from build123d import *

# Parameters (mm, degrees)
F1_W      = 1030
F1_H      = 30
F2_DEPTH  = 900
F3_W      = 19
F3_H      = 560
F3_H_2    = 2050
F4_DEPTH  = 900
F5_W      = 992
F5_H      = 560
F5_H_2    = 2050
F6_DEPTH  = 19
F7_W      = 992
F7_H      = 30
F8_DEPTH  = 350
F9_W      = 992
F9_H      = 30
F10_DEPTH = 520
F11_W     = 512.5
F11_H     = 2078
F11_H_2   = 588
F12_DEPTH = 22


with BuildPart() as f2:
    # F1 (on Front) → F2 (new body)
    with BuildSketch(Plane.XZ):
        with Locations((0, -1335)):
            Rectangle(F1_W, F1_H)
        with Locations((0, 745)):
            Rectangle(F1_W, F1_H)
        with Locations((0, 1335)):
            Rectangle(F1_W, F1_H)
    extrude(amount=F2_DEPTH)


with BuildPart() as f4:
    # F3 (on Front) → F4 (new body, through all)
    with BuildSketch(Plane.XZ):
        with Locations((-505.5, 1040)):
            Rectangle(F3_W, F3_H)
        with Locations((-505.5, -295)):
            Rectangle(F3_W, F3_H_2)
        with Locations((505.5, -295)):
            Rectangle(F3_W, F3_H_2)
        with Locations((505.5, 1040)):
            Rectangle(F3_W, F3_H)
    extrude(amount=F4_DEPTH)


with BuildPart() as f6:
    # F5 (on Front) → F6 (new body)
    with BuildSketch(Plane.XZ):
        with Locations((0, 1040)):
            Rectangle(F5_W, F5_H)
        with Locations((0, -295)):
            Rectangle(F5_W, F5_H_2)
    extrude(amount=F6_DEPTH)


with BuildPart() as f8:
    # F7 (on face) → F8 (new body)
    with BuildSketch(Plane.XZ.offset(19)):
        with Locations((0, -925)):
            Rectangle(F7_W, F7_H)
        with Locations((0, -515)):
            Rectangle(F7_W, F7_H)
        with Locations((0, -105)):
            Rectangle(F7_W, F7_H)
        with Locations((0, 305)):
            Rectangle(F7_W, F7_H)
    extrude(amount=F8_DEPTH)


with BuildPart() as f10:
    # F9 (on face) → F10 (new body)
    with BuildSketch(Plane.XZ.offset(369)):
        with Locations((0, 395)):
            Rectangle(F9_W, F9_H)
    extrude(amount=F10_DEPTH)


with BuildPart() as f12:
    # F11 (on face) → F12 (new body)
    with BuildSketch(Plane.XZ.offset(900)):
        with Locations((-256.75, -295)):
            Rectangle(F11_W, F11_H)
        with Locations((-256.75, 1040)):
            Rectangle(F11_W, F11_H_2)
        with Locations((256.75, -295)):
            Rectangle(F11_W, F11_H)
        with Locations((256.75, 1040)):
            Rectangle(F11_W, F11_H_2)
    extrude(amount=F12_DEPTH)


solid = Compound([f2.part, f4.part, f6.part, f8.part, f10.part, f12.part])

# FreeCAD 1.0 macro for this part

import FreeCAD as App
import Part
import Sketcher
from FreeCAD import Vector
Q = App.Units.Quantity

doc = App.newDocument("Part")
body = doc.addObject("PartDesign::Body", "Body")
body.AllowCompound = True

# Sketch on XZ plane
sketch1 = doc.addObject("Sketcher::SketchObject", "Sketch")
body.addObject(sketch1)
sketch1.AttachmentSupport = (doc.XZ_Plane, [""])
sketch1.MapMode = "FlatFace"
sketch1.addGeometry(Part.LineSegment(Vector(-515, -1320, 0), Vector(-515, -1350, 0)), False)
sketch1.addGeometry(Part.LineSegment(Vector(-515, -1350, 0), Vector(515, -1350, 0)), False)
sketch1.addGeometry(Part.LineSegment(Vector(515, -1350, 0), Vector(515, -1320, 0)), False)
sketch1.addGeometry(Part.LineSegment(Vector(515, -1320, 0), Vector(-515, -1320, 0)), False)
sketch1.addGeometry(Part.LineSegment(Vector(-515, 760, 0), Vector(-515, 730, 0)), False)
sketch1.addGeometry(Part.LineSegment(Vector(-515, 730, 0), Vector(515, 730, 0)), False)
sketch1.addGeometry(Part.LineSegment(Vector(515, 730, 0), Vector(515, 760, 0)), False)
sketch1.addGeometry(Part.LineSegment(Vector(515, 760, 0), Vector(-515, 760, 0)), False)
sketch1.addGeometry(Part.LineSegment(Vector(-515, 1350, 0), Vector(-515, 1320, 0)), False)
sketch1.addGeometry(Part.LineSegment(Vector(-515, 1320, 0), Vector(515, 1320, 0)), False)
sketch1.addGeometry(Part.LineSegment(Vector(515, 1320, 0), Vector(515, 1350, 0)), False)
sketch1.addGeometry(Part.LineSegment(Vector(515, 1350, 0), Vector(-515, 1350, 0)), False)
sketch1.addConstraint(Sketcher.Constraint("Coincident", 0, 2, 1, 1))
sketch1.addConstraint(Sketcher.Constraint("Coincident", 1, 2, 2, 1))
sketch1.addConstraint(Sketcher.Constraint("Coincident", 2, 2, 3, 1))
sketch1.addConstraint(Sketcher.Constraint("Coincident", 3, 2, 0, 1))
sketch1.addConstraint(Sketcher.Constraint("Coincident", 4, 2, 5, 1))
sketch1.addConstraint(Sketcher.Constraint("Coincident", 5, 2, 6, 1))
sketch1.addConstraint(Sketcher.Constraint("Coincident", 6, 2, 7, 1))
sketch1.addConstraint(Sketcher.Constraint("Coincident", 7, 2, 4, 1))
sketch1.addConstraint(Sketcher.Constraint("Coincident", 8, 2, 9, 1))
sketch1.addConstraint(Sketcher.Constraint("Coincident", 9, 2, 10, 1))
sketch1.addConstraint(Sketcher.Constraint("Coincident", 10, 2, 11, 1))
sketch1.addConstraint(Sketcher.Constraint("Coincident", 11, 2, 8, 1))
sketch1.addConstraint(Sketcher.Constraint("Vertical", 0))
sketch1.addConstraint(Sketcher.Constraint("Horizontal", 1))
sketch1.addConstraint(Sketcher.Constraint("Vertical", 2))
sketch1.addConstraint(Sketcher.Constraint("Horizontal", 3))
sketch1.addConstraint(Sketcher.Constraint("Vertical", 4))
sketch1.addConstraint(Sketcher.Constraint("Horizontal", 5))
sketch1.addConstraint(Sketcher.Constraint("Vertical", 6))
sketch1.addConstraint(Sketcher.Constraint("Horizontal", 7))
sketch1.addConstraint(Sketcher.Constraint("Vertical", 8))
sketch1.addConstraint(Sketcher.Constraint("Horizontal", 9))
sketch1.addConstraint(Sketcher.Constraint("Vertical", 10))
sketch1.addConstraint(Sketcher.Constraint("Horizontal", 11))
sketch1.addConstraint(Sketcher.Constraint("Symmetric", 2, 2, 8, 2, -1, 1))
sketch1.addConstraint(Sketcher.Constraint("Symmetric", 0, 2, 10, 2, -1, 1))
sketch1.addConstraint(Sketcher.Constraint("Vertical", 3, 2, 4, 2))
sketch1.addConstraint(Sketcher.Constraint("Vertical", 2, 2, 5, 2))
sketch1.addConstraint(Sketcher.Constraint("Vertical", 7, 2, 8, 2))
sketch1.addConstraint(Sketcher.Constraint("Equal", 2, 4))
sketch1.addConstraint(Sketcher.Constraint("DistanceX", 1, 1, 1, 2, Q("1030 mm")))
sketch1.addConstraint(Sketcher.Constraint("DistanceY", 0, 2, 0, 1, Q("30 mm")))
sketch1.addConstraint(Sketcher.Constraint("DistanceY", 0, 2, -1, 1, Q("1350 mm")))
sketch1.addConstraint(Sketcher.Constraint("DistanceY", -1, 1, 4, 2, Q("730 mm")))
pad1 = doc.addObject("PartDesign::Pad", "Pad")
body.addObject(pad1)
pad1.Profile = sketch1
pad1.Length = 900
body2 = doc.addObject("PartDesign::Body", "Body001")
body2.AllowCompound = True

# Sketch on XZ plane
sketch2 = doc.addObject("Sketcher::SketchObject", "Sketch001")
body2.addObject(sketch2)
sketch2.AttachmentSupport = (doc.getObject("XZ_Plane001"), [""])
sketch2.MapMode = "FlatFace"
sketch2.addGeometry(Part.LineSegment(Vector(-515, 1320, 0), Vector(-515, 760, 0)), False)
sketch2.addGeometry(Part.LineSegment(Vector(-515, 760, 0), Vector(-496, 760, 0)), False)
sketch2.addGeometry(Part.LineSegment(Vector(-496, 760, 0), Vector(-496, 1320, 0)), False)
sketch2.addGeometry(Part.LineSegment(Vector(-496, 1320, 0), Vector(-515, 1320, 0)), False)
sketch2.addGeometry(Part.LineSegment(Vector(-515, 730, 0), Vector(-515, -1320, 0)), False)
sketch2.addGeometry(Part.LineSegment(Vector(-515, -1320, 0), Vector(-496, -1320, 0)), False)
sketch2.addGeometry(Part.LineSegment(Vector(-496, -1320, 0), Vector(-496, 730, 0)), False)
sketch2.addGeometry(Part.LineSegment(Vector(-496, 730, 0), Vector(-515, 730, 0)), False)
sketch2.addGeometry(Part.LineSegment(Vector(496, 730, 0), Vector(496, -1320, 0)), False)
sketch2.addGeometry(Part.LineSegment(Vector(496, -1320, 0), Vector(515, -1320, 0)), False)
sketch2.addGeometry(Part.LineSegment(Vector(515, -1320, 0), Vector(515, 730, 0)), False)
sketch2.addGeometry(Part.LineSegment(Vector(515, 730, 0), Vector(496, 730, 0)), False)
sketch2.addGeometry(Part.LineSegment(Vector(496, 1320, 0), Vector(496, 760, 0)), False)
sketch2.addGeometry(Part.LineSegment(Vector(496, 760, 0), Vector(515, 760, 0)), False)
sketch2.addGeometry(Part.LineSegment(Vector(515, 760, 0), Vector(515, 1320, 0)), False)
sketch2.addGeometry(Part.LineSegment(Vector(515, 1320, 0), Vector(496, 1320, 0)), False)
sketch2.addConstraint(Sketcher.Constraint("Coincident", 0, 2, 1, 1))
sketch2.addConstraint(Sketcher.Constraint("Coincident", 1, 2, 2, 1))
sketch2.addConstraint(Sketcher.Constraint("Coincident", 2, 2, 3, 1))
sketch2.addConstraint(Sketcher.Constraint("Coincident", 3, 2, 0, 1))
sketch2.addConstraint(Sketcher.Constraint("Coincident", 4, 2, 5, 1))
sketch2.addConstraint(Sketcher.Constraint("Coincident", 5, 2, 6, 1))
sketch2.addConstraint(Sketcher.Constraint("Coincident", 6, 2, 7, 1))
sketch2.addConstraint(Sketcher.Constraint("Coincident", 7, 2, 4, 1))
sketch2.addConstraint(Sketcher.Constraint("Coincident", 8, 2, 9, 1))
sketch2.addConstraint(Sketcher.Constraint("Coincident", 9, 2, 10, 1))
sketch2.addConstraint(Sketcher.Constraint("Coincident", 10, 2, 11, 1))
sketch2.addConstraint(Sketcher.Constraint("Coincident", 11, 2, 8, 1))
sketch2.addConstraint(Sketcher.Constraint("Coincident", 12, 2, 13, 1))
sketch2.addConstraint(Sketcher.Constraint("Coincident", 13, 2, 14, 1))
sketch2.addConstraint(Sketcher.Constraint("Coincident", 14, 2, 15, 1))
sketch2.addConstraint(Sketcher.Constraint("Coincident", 15, 2, 12, 1))
sketch2.addConstraint(Sketcher.Constraint("Vertical", 0))
sketch2.addConstraint(Sketcher.Constraint("Horizontal", 1))
sketch2.addConstraint(Sketcher.Constraint("Vertical", 2))
sketch2.addConstraint(Sketcher.Constraint("Horizontal", 3))
sketch2.addConstraint(Sketcher.Constraint("Vertical", 4))
sketch2.addConstraint(Sketcher.Constraint("Horizontal", 5))
sketch2.addConstraint(Sketcher.Constraint("Vertical", 6))
sketch2.addConstraint(Sketcher.Constraint("Horizontal", 7))
sketch2.addConstraint(Sketcher.Constraint("Vertical", 8))
sketch2.addConstraint(Sketcher.Constraint("Horizontal", 9))
sketch2.addConstraint(Sketcher.Constraint("Vertical", 10))
sketch2.addConstraint(Sketcher.Constraint("Horizontal", 11))
sketch2.addConstraint(Sketcher.Constraint("Vertical", 12))
sketch2.addConstraint(Sketcher.Constraint("Horizontal", 13))
sketch2.addConstraint(Sketcher.Constraint("Vertical", 14))
sketch2.addConstraint(Sketcher.Constraint("Horizontal", 15))
sketch2.addConstraint(Sketcher.Constraint("Symmetric", 2, 2, 8, 2, -1, 1))
sketch2.addConstraint(Sketcher.Constraint("Symmetric", 4, 2, 14, 2, -1, 1))
sketch2.addConstraint(Sketcher.Constraint("Symmetric", 5, 2, 8, 2, -2))
sketch2.addConstraint(Sketcher.Constraint("Symmetric", 7, 2, 10, 2, -2))
sketch2.addConstraint(Sketcher.Constraint("Symmetric", 1, 2, 12, 2, -2))
sketch2.addConstraint(Sketcher.Constraint("Vertical", 3, 2, 4, 2))
sketch2.addConstraint(Sketcher.Constraint("DistanceX", 1, 1, 1, 2, Q("19 mm")))
sketch2.addConstraint(Sketcher.Constraint("DistanceY", 0, 2, 0, 1, Q("560 mm")))
sketch2.addConstraint(Sketcher.Constraint("DistanceY", 4, 2, 4, 1, Q("2050 mm")))
sketch2.addConstraint(Sketcher.Constraint("DistanceX", 0, 2, -1, 1, Q("515 mm")))
sketch2.addConstraint(Sketcher.Constraint("DistanceY", -1, 1, 0, 2, Q("760 mm")))
pad2 = doc.addObject("PartDesign::Pad", "Pad001")
body2.addObject(pad2)
pad2.Profile = sketch2
pad2.Length = 900
body3 = doc.addObject("PartDesign::Body", "Body002")
body3.AllowCompound = True

# Sketch on XZ plane
sketch3 = doc.addObject("Sketcher::SketchObject", "Sketch002")
body3.addObject(sketch3)
sketch3.AttachmentSupport = (doc.getObject("XZ_Plane002"), [""])
sketch3.MapMode = "FlatFace"
sketch3.addGeometry(Part.LineSegment(Vector(-496, 1320, 0), Vector(-496, 760, 0)), False)
sketch3.addGeometry(Part.LineSegment(Vector(-496, 760, 0), Vector(496, 760, 0)), False)
sketch3.addGeometry(Part.LineSegment(Vector(496, 760, 0), Vector(496, 1320, 0)), False)
sketch3.addGeometry(Part.LineSegment(Vector(496, 1320, 0), Vector(-496, 1320, 0)), False)
sketch3.addGeometry(Part.LineSegment(Vector(-496, 730, 0), Vector(-496, -1320, 0)), False)
sketch3.addGeometry(Part.LineSegment(Vector(-496, -1320, 0), Vector(496, -1320, 0)), False)
sketch3.addGeometry(Part.LineSegment(Vector(496, -1320, 0), Vector(496, 730, 0)), False)
sketch3.addGeometry(Part.LineSegment(Vector(496, 730, 0), Vector(-496, 730, 0)), False)
sketch3.addConstraint(Sketcher.Constraint("Coincident", 0, 2, 1, 1))
sketch3.addConstraint(Sketcher.Constraint("Coincident", 1, 2, 2, 1))
sketch3.addConstraint(Sketcher.Constraint("Coincident", 2, 2, 3, 1))
sketch3.addConstraint(Sketcher.Constraint("Coincident", 3, 2, 0, 1))
sketch3.addConstraint(Sketcher.Constraint("Coincident", 4, 2, 5, 1))
sketch3.addConstraint(Sketcher.Constraint("Coincident", 5, 2, 6, 1))
sketch3.addConstraint(Sketcher.Constraint("Coincident", 6, 2, 7, 1))
sketch3.addConstraint(Sketcher.Constraint("Coincident", 7, 2, 4, 1))
sketch3.addConstraint(Sketcher.Constraint("Vertical", 0))
sketch3.addConstraint(Sketcher.Constraint("Horizontal", 1))
sketch3.addConstraint(Sketcher.Constraint("Vertical", 2))
sketch3.addConstraint(Sketcher.Constraint("Horizontal", 3))
sketch3.addConstraint(Sketcher.Constraint("Vertical", 4))
sketch3.addConstraint(Sketcher.Constraint("Horizontal", 5))
sketch3.addConstraint(Sketcher.Constraint("Vertical", 6))
sketch3.addConstraint(Sketcher.Constraint("Horizontal", 7))
sketch3.addConstraint(Sketcher.Constraint("Symmetric", 2, 2, 4, 2, -1, 1))
sketch3.addConstraint(Sketcher.Constraint("Vertical", 3, 2, 4, 2))
sketch3.addConstraint(Sketcher.Constraint("Vertical", 2, 2, 5, 2))
sketch3.addConstraint(Sketcher.Constraint("DistanceX", 1, 1, 1, 2, Q("992 mm")))
sketch3.addConstraint(Sketcher.Constraint("DistanceY", 0, 2, 0, 1, Q("560 mm")))
sketch3.addConstraint(Sketcher.Constraint("DistanceY", 4, 2, 4, 1, Q("2050 mm")))
sketch3.addConstraint(Sketcher.Constraint("DistanceY", -1, 1, 0, 2, Q("760 mm")))
pad3 = doc.addObject("PartDesign::Pad", "Pad002")
body3.addObject(pad3)
pad3.Profile = sketch3
pad3.Length = 19
body4 = doc.addObject("PartDesign::Body", "Body003")
body4.AllowCompound = True

# Sketch on XZ plane
sketch4 = doc.addObject("Sketcher::SketchObject", "Sketch003")
body4.addObject(sketch4)
sketch4.AttachmentSupport = (doc.getObject("XZ_Plane003"), [""])
sketch4.MapMode = "FlatFace"
sketch4.AttachmentOffset = App.Placement(Vector(0, 0, 19), App.Rotation())
sketch4.addGeometry(Part.LineSegment(Vector(-496, -910, 0), Vector(-496, -940, 0)), False)
sketch4.addGeometry(Part.LineSegment(Vector(-496, -940, 0), Vector(496, -940, 0)), False)
sketch4.addGeometry(Part.LineSegment(Vector(496, -940, 0), Vector(496, -910, 0)), False)
sketch4.addGeometry(Part.LineSegment(Vector(496, -910, 0), Vector(-496, -910, 0)), False)
sketch4.addGeometry(Part.LineSegment(Vector(-496, -500, 0), Vector(-496, -530, 0)), False)
sketch4.addGeometry(Part.LineSegment(Vector(-496, -530, 0), Vector(496, -530, 0)), False)
sketch4.addGeometry(Part.LineSegment(Vector(496, -530, 0), Vector(496, -500, 0)), False)
sketch4.addGeometry(Part.LineSegment(Vector(496, -500, 0), Vector(-496, -500, 0)), False)
sketch4.addGeometry(Part.LineSegment(Vector(-496, -90, 0), Vector(-496, -120, 0)), False)
sketch4.addGeometry(Part.LineSegment(Vector(-496, -120, 0), Vector(496, -120, 0)), False)
sketch4.addGeometry(Part.LineSegment(Vector(496, -120, 0), Vector(496, -90, 0)), False)
sketch4.addGeometry(Part.LineSegment(Vector(496, -90, 0), Vector(-496, -90, 0)), False)
sketch4.addGeometry(Part.LineSegment(Vector(-496, 320, 0), Vector(-496, 290, 0)), False)
sketch4.addGeometry(Part.LineSegment(Vector(-496, 290, 0), Vector(496, 290, 0)), False)
sketch4.addGeometry(Part.LineSegment(Vector(496, 290, 0), Vector(496, 320, 0)), False)
sketch4.addGeometry(Part.LineSegment(Vector(496, 320, 0), Vector(-496, 320, 0)), False)
sketch4.addConstraint(Sketcher.Constraint("Coincident", 0, 2, 1, 1))
sketch4.addConstraint(Sketcher.Constraint("Coincident", 1, 2, 2, 1))
sketch4.addConstraint(Sketcher.Constraint("Coincident", 2, 2, 3, 1))
sketch4.addConstraint(Sketcher.Constraint("Coincident", 3, 2, 0, 1))
sketch4.addConstraint(Sketcher.Constraint("Coincident", 4, 2, 5, 1))
sketch4.addConstraint(Sketcher.Constraint("Coincident", 5, 2, 6, 1))
sketch4.addConstraint(Sketcher.Constraint("Coincident", 6, 2, 7, 1))
sketch4.addConstraint(Sketcher.Constraint("Coincident", 7, 2, 4, 1))
sketch4.addConstraint(Sketcher.Constraint("Coincident", 8, 2, 9, 1))
sketch4.addConstraint(Sketcher.Constraint("Coincident", 9, 2, 10, 1))
sketch4.addConstraint(Sketcher.Constraint("Coincident", 10, 2, 11, 1))
sketch4.addConstraint(Sketcher.Constraint("Coincident", 11, 2, 8, 1))
sketch4.addConstraint(Sketcher.Constraint("Coincident", 12, 2, 13, 1))
sketch4.addConstraint(Sketcher.Constraint("Coincident", 13, 2, 14, 1))
sketch4.addConstraint(Sketcher.Constraint("Coincident", 14, 2, 15, 1))
sketch4.addConstraint(Sketcher.Constraint("Coincident", 15, 2, 12, 1))
sketch4.addConstraint(Sketcher.Constraint("Vertical", 0))
sketch4.addConstraint(Sketcher.Constraint("Horizontal", 1))
sketch4.addConstraint(Sketcher.Constraint("Vertical", 2))
sketch4.addConstraint(Sketcher.Constraint("Horizontal", 3))
sketch4.addConstraint(Sketcher.Constraint("Vertical", 4))
sketch4.addConstraint(Sketcher.Constraint("Horizontal", 5))
sketch4.addConstraint(Sketcher.Constraint("Vertical", 6))
sketch4.addConstraint(Sketcher.Constraint("Horizontal", 7))
sketch4.addConstraint(Sketcher.Constraint("Vertical", 8))
sketch4.addConstraint(Sketcher.Constraint("Horizontal", 9))
sketch4.addConstraint(Sketcher.Constraint("Vertical", 10))
sketch4.addConstraint(Sketcher.Constraint("Horizontal", 11))
sketch4.addConstraint(Sketcher.Constraint("Vertical", 12))
sketch4.addConstraint(Sketcher.Constraint("Horizontal", 13))
sketch4.addConstraint(Sketcher.Constraint("Vertical", 14))
sketch4.addConstraint(Sketcher.Constraint("Horizontal", 15))
sketch4.addConstraint(Sketcher.Constraint("Vertical", 3, 2, 4, 2))
sketch4.addConstraint(Sketcher.Constraint("Vertical", 2, 2, 5, 2))
sketch4.addConstraint(Sketcher.Constraint("Vertical", 7, 2, 8, 2))
sketch4.addConstraint(Sketcher.Constraint("Vertical", 6, 2, 9, 2))
sketch4.addConstraint(Sketcher.Constraint("Vertical", 11, 2, 12, 2))
sketch4.addConstraint(Sketcher.Constraint("Vertical", 10, 2, 13, 2))
sketch4.addConstraint(Sketcher.Constraint("Equal", 2, 4))
sketch4.addConstraint(Sketcher.Constraint("Equal", 6, 8))
sketch4.addConstraint(Sketcher.Constraint("Equal", 10, 12))
sketch4.addConstraint(Sketcher.Constraint("DistanceX", 1, 1, 1, 2, Q("992 mm")))
sketch4.addConstraint(Sketcher.Constraint("DistanceY", 0, 2, 0, 1, Q("30 mm")))
sketch4.addConstraint(Sketcher.Constraint("DistanceX", 0, 2, -1, 1, Q("496 mm")))
sketch4.addConstraint(Sketcher.Constraint("DistanceY", 0, 2, -1, 1, Q("940 mm")))
sketch4.addConstraint(Sketcher.Constraint("DistanceY", 4, 2, -1, 1, Q("530 mm")))
sketch4.addConstraint(Sketcher.Constraint("DistanceY", 8, 2, -1, 1, Q("120 mm")))
sketch4.addConstraint(Sketcher.Constraint("DistanceY", -1, 1, 12, 2, Q("290 mm")))
pad4 = doc.addObject("PartDesign::Pad", "Pad003")
body4.addObject(pad4)
pad4.Profile = sketch4
pad4.Length = 350
body5 = doc.addObject("PartDesign::Body", "Body004")

# Sketch on XZ plane
sketch5 = doc.addObject("Sketcher::SketchObject", "Sketch004")
body5.addObject(sketch5)
sketch5.AttachmentSupport = (doc.getObject("XZ_Plane004"), [""])
sketch5.MapMode = "FlatFace"
sketch5.AttachmentOffset = App.Placement(Vector(0, 0, 369), App.Rotation())
sketch5.addGeometry(Part.LineSegment(Vector(-496, 410, 0), Vector(-496, 380, 0)), False)
sketch5.addGeometry(Part.LineSegment(Vector(-496, 380, 0), Vector(496, 380, 0)), False)
sketch5.addGeometry(Part.LineSegment(Vector(496, 380, 0), Vector(496, 410, 0)), False)
sketch5.addGeometry(Part.LineSegment(Vector(496, 410, 0), Vector(-496, 410, 0)), False)
sketch5.addConstraint(Sketcher.Constraint("Coincident", 0, 2, 1, 1))
sketch5.addConstraint(Sketcher.Constraint("Coincident", 1, 2, 2, 1))
sketch5.addConstraint(Sketcher.Constraint("Coincident", 2, 2, 3, 1))
sketch5.addConstraint(Sketcher.Constraint("Coincident", 3, 2, 0, 1))
sketch5.addConstraint(Sketcher.Constraint("Vertical", 0))
sketch5.addConstraint(Sketcher.Constraint("Horizontal", 1))
sketch5.addConstraint(Sketcher.Constraint("Vertical", 2))
sketch5.addConstraint(Sketcher.Constraint("Horizontal", 3))
sketch5.addConstraint(Sketcher.Constraint("DistanceX", 1, 1, 1, 2, Q("992 mm")))
sketch5.addConstraint(Sketcher.Constraint("DistanceY", 0, 2, 0, 1, Q("30 mm")))
sketch5.addConstraint(Sketcher.Constraint("DistanceX", 0, 2, -1, 1, Q("496 mm")))
sketch5.addConstraint(Sketcher.Constraint("DistanceY", -1, 1, 0, 2, Q("380 mm")))
pad5 = doc.addObject("PartDesign::Pad", "Pad004")
body5.addObject(pad5)
pad5.Profile = sketch5
pad5.Length = 520
body6 = doc.addObject("PartDesign::Body", "Body005")
body6.AllowCompound = True

# Sketch on XZ plane
sketch6 = doc.addObject("Sketcher::SketchObject", "Sketch005")
body6.addObject(sketch6)
sketch6.AttachmentSupport = (doc.getObject("XZ_Plane005"), [""])
sketch6.MapMode = "FlatFace"
sketch6.AttachmentOffset = App.Placement(Vector(0, 0, 900), App.Rotation())
sketch6.addGeometry(Part.LineSegment(Vector(-513, 744, 0), Vector(-513, -1334, 0)), False)
sketch6.addGeometry(Part.LineSegment(Vector(-513, -1334, 0), Vector(-0.5, -1334, 0)), False)
sketch6.addGeometry(Part.LineSegment(Vector(-0.5, -1334, 0), Vector(-0.5, 744, 0)), False)
sketch6.addGeometry(Part.LineSegment(Vector(-0.5, 744, 0), Vector(-513, 744, 0)), False)
sketch6.addGeometry(Part.LineSegment(Vector(-513, 1334, 0), Vector(-513, 746, 0)), False)
sketch6.addGeometry(Part.LineSegment(Vector(-513, 746, 0), Vector(-0.5, 746, 0)), False)
sketch6.addGeometry(Part.LineSegment(Vector(-0.5, 746, 0), Vector(-0.5, 1334, 0)), False)
sketch6.addGeometry(Part.LineSegment(Vector(-0.5, 1334, 0), Vector(-513, 1334, 0)), False)
sketch6.addGeometry(Part.LineSegment(Vector(0.5, 744, 0), Vector(0.5, -1334, 0)), False)
sketch6.addGeometry(Part.LineSegment(Vector(0.5, -1334, 0), Vector(513, -1334, 0)), False)
sketch6.addGeometry(Part.LineSegment(Vector(513, -1334, 0), Vector(513, 744, 0)), False)
sketch6.addGeometry(Part.LineSegment(Vector(513, 744, 0), Vector(0.5, 744, 0)), False)
sketch6.addGeometry(Part.LineSegment(Vector(0.5, 1334, 0), Vector(0.5, 746, 0)), False)
sketch6.addGeometry(Part.LineSegment(Vector(0.5, 746, 0), Vector(513, 746, 0)), False)
sketch6.addGeometry(Part.LineSegment(Vector(513, 746, 0), Vector(513, 1334, 0)), False)
sketch6.addGeometry(Part.LineSegment(Vector(513, 1334, 0), Vector(0.5, 1334, 0)), False)
sketch6.addConstraint(Sketcher.Constraint("Coincident", 0, 2, 1, 1))
sketch6.addConstraint(Sketcher.Constraint("Coincident", 1, 2, 2, 1))
sketch6.addConstraint(Sketcher.Constraint("Coincident", 2, 2, 3, 1))
sketch6.addConstraint(Sketcher.Constraint("Coincident", 3, 2, 0, 1))
sketch6.addConstraint(Sketcher.Constraint("Coincident", 4, 2, 5, 1))
sketch6.addConstraint(Sketcher.Constraint("Coincident", 5, 2, 6, 1))
sketch6.addConstraint(Sketcher.Constraint("Coincident", 6, 2, 7, 1))
sketch6.addConstraint(Sketcher.Constraint("Coincident", 7, 2, 4, 1))
sketch6.addConstraint(Sketcher.Constraint("Coincident", 8, 2, 9, 1))
sketch6.addConstraint(Sketcher.Constraint("Coincident", 9, 2, 10, 1))
sketch6.addConstraint(Sketcher.Constraint("Coincident", 10, 2, 11, 1))
sketch6.addConstraint(Sketcher.Constraint("Coincident", 11, 2, 8, 1))
sketch6.addConstraint(Sketcher.Constraint("Coincident", 12, 2, 13, 1))
sketch6.addConstraint(Sketcher.Constraint("Coincident", 13, 2, 14, 1))
sketch6.addConstraint(Sketcher.Constraint("Coincident", 14, 2, 15, 1))
sketch6.addConstraint(Sketcher.Constraint("Coincident", 15, 2, 12, 1))
sketch6.addConstraint(Sketcher.Constraint("Vertical", 0))
sketch6.addConstraint(Sketcher.Constraint("Horizontal", 1))
sketch6.addConstraint(Sketcher.Constraint("Vertical", 2))
sketch6.addConstraint(Sketcher.Constraint("Horizontal", 3))
sketch6.addConstraint(Sketcher.Constraint("Vertical", 4))
sketch6.addConstraint(Sketcher.Constraint("Horizontal", 5))
sketch6.addConstraint(Sketcher.Constraint("Vertical", 6))
sketch6.addConstraint(Sketcher.Constraint("Horizontal", 7))
sketch6.addConstraint(Sketcher.Constraint("Vertical", 8))
sketch6.addConstraint(Sketcher.Constraint("Horizontal", 9))
sketch6.addConstraint(Sketcher.Constraint("Vertical", 10))
sketch6.addConstraint(Sketcher.Constraint("Horizontal", 11))
sketch6.addConstraint(Sketcher.Constraint("Vertical", 12))
sketch6.addConstraint(Sketcher.Constraint("Horizontal", 13))
sketch6.addConstraint(Sketcher.Constraint("Vertical", 14))
sketch6.addConstraint(Sketcher.Constraint("Horizontal", 15))
sketch6.addConstraint(Sketcher.Constraint("Symmetric", 6, 2, 8, 2, -1, 1))
sketch6.addConstraint(Sketcher.Constraint("Symmetric", 0, 2, 14, 2, -1, 1))
sketch6.addConstraint(Sketcher.Constraint("Symmetric", 1, 2, 8, 2, -2))
sketch6.addConstraint(Sketcher.Constraint("Symmetric", 3, 2, 10, 2, -2))
sketch6.addConstraint(Sketcher.Constraint("Symmetric", 5, 2, 12, 2, -2))
sketch6.addConstraint(Sketcher.Constraint("Vertical", 3, 2, 4, 2))
sketch6.addConstraint(Sketcher.Constraint("DistanceY", 0, 2, 0, 1, Q("2078 mm")))
sketch6.addConstraint(Sketcher.Constraint("DistanceY", 4, 2, 4, 1, Q("588 mm")))
sketch6.addConstraint(Sketcher.Constraint("DistanceX", 1, 1, 1, 2, Q("512.5 mm")))
sketch6.addConstraint(Sketcher.Constraint("DistanceX", 0, 2, -1, 1, Q("513 mm")))
sketch6.addConstraint(Sketcher.Constraint("DistanceY", 0, 2, -1, 1, Q("1334 mm")))
pad6 = doc.addObject("PartDesign::Pad", "Pad005")
body6.addObject(pad6)
pad6.Profile = sketch6
pad6.Length = 22

doc.recompute()
